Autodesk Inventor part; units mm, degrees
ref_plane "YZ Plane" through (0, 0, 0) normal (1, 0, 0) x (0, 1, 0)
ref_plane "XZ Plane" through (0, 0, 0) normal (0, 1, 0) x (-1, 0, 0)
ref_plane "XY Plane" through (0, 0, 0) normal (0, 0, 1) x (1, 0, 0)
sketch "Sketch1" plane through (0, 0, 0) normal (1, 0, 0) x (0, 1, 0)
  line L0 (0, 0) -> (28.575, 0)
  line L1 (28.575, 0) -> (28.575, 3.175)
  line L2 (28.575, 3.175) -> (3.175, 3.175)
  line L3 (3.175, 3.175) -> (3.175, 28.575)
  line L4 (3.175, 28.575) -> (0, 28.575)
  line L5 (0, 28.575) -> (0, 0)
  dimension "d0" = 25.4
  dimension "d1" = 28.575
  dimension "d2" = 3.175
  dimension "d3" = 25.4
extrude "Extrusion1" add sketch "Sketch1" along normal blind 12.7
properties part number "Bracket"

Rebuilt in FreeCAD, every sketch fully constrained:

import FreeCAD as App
import Part
import Sketcher

V = App.Vector
Q = App.Units.Quantity


def add_polygon(sketch, points):
    """Adds a closed chain of lines whose ends are joined by coincident constraints."""
    first, n = sketch.GeometryCount, len(points)
    for a, b in zip(points, points[1:] + points[:1]):
        sketch.addGeometry(Part.LineSegment(App.Vector(*a, 0), App.Vector(*b, 0)), False)
    for i in range(n):
        sketch.addConstraint(Sketcher.Constraint("Coincident", first + i, 2, first + (i + 1) % n, 1))

doc = App.newDocument("Part")
params = doc.addObject("Spreadsheet::Sheet", "Params")
for row, (alias, value) in enumerate([
    ("sketch1_width", "1 in"),
    ("sketch1_width2", "1.125 in"),
    ("pad1_length", "0.5 in"),
], start=1):
    params.set(f"A{row}", alias)
    params.set(f"B{row}", "=" + value)
    params.setAlias(f"B{row}", alias)

body = doc.addObject("PartDesign::Body", "Body")

sketch1 = body.newObject("Sketcher::SketchObject", "Sketch")
sketch1.AttachmentSupport = (doc.getObject("YZ_Plane"), [""])
sketch1.MapMode = "FlatFace"
add_polygon(sketch1, [(0, 28.6), (0, 0), (28.6, 0), (28.6, 3.2), (3.2, 3.2), (3.2, 28.6)])
sketch1.addConstraint([
    Sketcher.Constraint("Vertical", 0),
    Sketcher.Constraint("Horizontal", 1),
    Sketcher.Constraint("Vertical", 2),
    Sketcher.Constraint("Horizontal", 3),
    Sketcher.Constraint("Vertical", 4),
    Sketcher.Constraint("Horizontal", 5),
    Sketcher.Constraint("Coincident", 0, 2, -1, 1),
    Sketcher.Constraint("Equal", 1, 0),
    Sketcher.Constraint("Equal", 5, 2),
    Sketcher.Constraint("DistanceX", 3, 2, 3, 1, Q("1 in")),
    Sketcher.Constraint("DistanceX", 1, 1, 1, 2, Q("1.125 in")),
])
sketch1.setExpression("Constraints[15]", "Params.sketch1_width")
sketch1.setExpression("Constraints[16]", "Params.sketch1_width2")
pad1 = body.newObject("PartDesign::Pad", "Pad")
pad1.Profile = sketch1
pad1.setExpression("Length", "Params.pad1_length")

doc.recompute()
